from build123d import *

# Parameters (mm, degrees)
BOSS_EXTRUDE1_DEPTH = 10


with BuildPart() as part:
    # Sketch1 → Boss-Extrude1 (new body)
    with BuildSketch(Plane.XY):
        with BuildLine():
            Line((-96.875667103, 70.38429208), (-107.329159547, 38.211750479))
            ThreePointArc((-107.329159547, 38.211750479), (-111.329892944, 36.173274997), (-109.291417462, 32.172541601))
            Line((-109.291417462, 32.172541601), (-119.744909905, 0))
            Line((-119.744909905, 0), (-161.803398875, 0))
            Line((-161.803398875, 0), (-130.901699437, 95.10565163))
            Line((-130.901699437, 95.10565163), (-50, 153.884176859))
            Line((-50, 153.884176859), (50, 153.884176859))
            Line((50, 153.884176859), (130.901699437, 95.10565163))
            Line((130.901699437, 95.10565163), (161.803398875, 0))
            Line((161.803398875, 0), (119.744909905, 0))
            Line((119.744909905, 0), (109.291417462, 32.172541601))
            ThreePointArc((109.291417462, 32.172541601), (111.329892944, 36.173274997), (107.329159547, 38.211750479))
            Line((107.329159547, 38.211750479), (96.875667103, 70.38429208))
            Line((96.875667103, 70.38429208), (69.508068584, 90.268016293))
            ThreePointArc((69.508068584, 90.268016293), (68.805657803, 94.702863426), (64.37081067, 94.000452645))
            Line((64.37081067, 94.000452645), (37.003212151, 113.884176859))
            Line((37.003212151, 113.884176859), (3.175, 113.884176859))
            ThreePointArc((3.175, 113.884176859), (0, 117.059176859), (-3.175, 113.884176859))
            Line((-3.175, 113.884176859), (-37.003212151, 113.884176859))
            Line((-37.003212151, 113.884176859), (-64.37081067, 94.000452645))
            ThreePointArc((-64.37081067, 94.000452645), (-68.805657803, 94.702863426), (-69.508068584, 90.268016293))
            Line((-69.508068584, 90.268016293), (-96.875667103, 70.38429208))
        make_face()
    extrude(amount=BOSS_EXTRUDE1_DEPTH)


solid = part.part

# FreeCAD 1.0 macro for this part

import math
import FreeCAD as App
import Part
import Sketcher
Q = App.Units.Quantity

doc = App.newDocument("Part")
body = doc.addObject("PartDesign::Body", "Body")

sketch1 = doc.addObject("Sketcher::SketchObject", "Sketch")
body.addObject(sketch1)
sketch1.AttachmentSupport = (doc.XY_Plane, [""])
sketch1.MapMode = "FlatFace"
sketch1.addGeometry(Part.LineSegment(App.Vector(-107.3, 38.2, 0), App.Vector(-96.9, 70.4, 0)), False)
sketch1.addGeometry(Part.LineSegment(App.Vector(-96.9, 70.4, 0), App.Vector(-69.5, 90.3, 0)), False)
sketch1.addGeometry(Part.ArcOfCircle(Part.Circle(App.Vector(-66.9, 92.1, 0), App.Vector(0, 0, 1), 3.2), math.radians(36), math.radians(216)), False)
sketch1.addGeometry(Part.LineSegment(App.Vector(-64.4, 94, 0), App.Vector(-37, 113.9, 0)), False)
sketch1.addGeometry(Part.LineSegment(App.Vector(-37, 113.9, 0), App.Vector(-3.2, 113.9, 0)), False)
sketch1.addGeometry(Part.ArcOfCircle(Part.Circle(App.Vector(0, 113.9, 0), App.Vector(0, 0, 1), 3.2), math.radians(0), math.radians(180)), False)
sketch1.addGeometry(Part.LineSegment(App.Vector(3.2, 113.9, 0), App.Vector(37, 113.9, 0)), False)
sketch1.addGeometry(Part.LineSegment(App.Vector(37, 113.9, 0), App.Vector(64.4, 94, 0)), False)
sketch1.addGeometry(Part.ArcOfCircle(Part.Circle(App.Vector(66.9, 92.1, 0), App.Vector(0, 0, 1), 3.2), math.radians(-36), math.radians(144)), False)
sketch1.addGeometry(Part.LineSegment(App.Vector(69.5, 90.3, 0), App.Vector(96.9, 70.4, 0)), False)
sketch1.addGeometry(Part.LineSegment(App.Vector(96.9, 70.4, 0), App.Vector(107.3, 38.2, 0)), False)
sketch1.addGeometry(Part.ArcOfCircle(Part.Circle(App.Vector(108.3, 35.2, 0), App.Vector(0, 0, 1), 3.2), math.radians(-72), math.radians(108)), False)
sketch1.addGeometry(Part.LineSegment(App.Vector(109.3, 32.2, 0), App.Vector(119.7, 0, 0)), False)
sketch1.addGeometry(Part.LineSegment(App.Vector(119.7, 0, 0), App.Vector(161.8, 0, 0)), False)
sketch1.addGeometry(Part.LineSegment(App.Vector(161.8, 0, 0), App.Vector(130.9, 95.1, 0)), False)
sketch1.addGeometry(Part.LineSegment(App.Vector(130.9, 95.1, 0), App.Vector(50, 153.9, 0)), False)
sketch1.addGeometry(Part.LineSegment(App.Vector(50, 153.9, 0), App.Vector(-50, 153.9, 0)), False)
sketch1.addGeometry(Part.LineSegment(App.Vector(-50, 153.9, 0), App.Vector(-130.9, 95.1, 0)), False)
sketch1.addGeometry(Part.LineSegment(App.Vector(-130.9, 95.1, 0), App.Vector(-161.8, 0, 0)), False)
sketch1.addGeometry(Part.LineSegment(App.Vector(-161.8, 0, 0), App.Vector(-119.7, 0, 0)), False)
sketch1.addGeometry(Part.LineSegment(App.Vector(-119.7, 0, 0), App.Vector(-109.3, 32.2, 0)), False)
sketch1.addGeometry(Part.ArcOfCircle(Part.Circle(App.Vector(-108.3, 35.2, 0), App.Vector(0, 0, 1), 3.2), math.radians(72), math.radians(252)), False)
sketch1.addConstraint(Sketcher.Constraint("Coincident", 0, 2, 1, 1))
sketch1.addConstraint(Sketcher.Constraint("Coincident", 1, 2, 2, 2))
sketch1.addConstraint(Sketcher.Constraint("Coincident", 2, 1, 3, 1))
sketch1.addConstraint(Sketcher.Constraint("Coincident", 3, 2, 4, 1))
sketch1.addConstraint(Sketcher.Constraint("Coincident", 4, 2, 5, 2))
sketch1.addConstraint(Sketcher.Constraint("Coincident", 5, 1, 6, 1))
sketch1.addConstraint(Sketcher.Constraint("Coincident", 6, 2, 7, 1))
sketch1.addConstraint(Sketcher.Constraint("Coincident", 7, 2, 8, 2))
sketch1.addConstraint(Sketcher.Constraint("Coincident", 8, 1, 9, 1))
sketch1.addConstraint(Sketcher.Constraint("Coincident", 9, 2, 10, 1))
sketch1.addConstraint(Sketcher.Constraint("Coincident", 10, 2, 11, 2))
sketch1.addConstraint(Sketcher.Constraint("Coincident", 11, 1, 12, 1))
sketch1.addConstraint(Sketcher.Constraint("Coincident", 12, 2, 13, 1))
sketch1.addConstraint(Sketcher.Constraint("Coincident", 13, 2, 14, 1))
sketch1.addConstraint(Sketcher.Constraint("Coincident", 14, 2, 15, 1))
sketch1.addConstraint(Sketcher.Constraint("Coincident", 15, 2, 16, 1))
sketch1.addConstraint(Sketcher.Constraint("Coincident", 16, 2, 17, 1))
sketch1.addConstraint(Sketcher.Constraint("Coincident", 17, 2, 18, 1))
sketch1.addConstraint(Sketcher.Constraint("Coincident", 18, 2, 19, 1))
sketch1.addConstraint(Sketcher.Constraint("Coincident", 19, 2, 20, 1))
sketch1.addConstraint(Sketcher.Constraint("Coincident", 20, 2, 21, 2))
sketch1.addConstraint(Sketcher.Constraint("Coincident", 21, 1, 0, 1))
sketch1.addConstraint(Sketcher.Constraint("Horizontal", 4))
sketch1.addConstraint(Sketcher.Constraint("Horizontal", 6))
sketch1.addConstraint(Sketcher.Constraint("Horizontal", 13))
sketch1.addConstraint(Sketcher.Constraint("Horizontal", 16))
sketch1.addConstraint(Sketcher.Constraint("Horizontal", 19))
sketch1.addConstraint(Sketcher.Constraint("Equal", 2, 5))
sketch1.addConstraint(Sketcher.Constraint("Equal", 5, 8))
sketch1.addConstraint(Sketcher.Constraint("Equal", 8, 11))
sketch1.addConstraint(Sketcher.Constraint("Equal", 11, 21))
sketch1.addConstraint(Sketcher.Constraint("Symmetric", 13, 2, 18, 2, -1, 1))
sketch1.addConstraint(Sketcher.Constraint("Symmetric", 2, 3, 8, 3, -2))
sketch1.addConstraint(Sketcher.Constraint("Symmetric", 11, 3, 21, 3, -2))
sketch1.addConstraint(Sketcher.Constraint("Symmetric", 4, 2, 5, 1, -2))
sketch1.addConstraint(Sketcher.Constraint("Symmetric", 0, 2, 9, 2, -2))
sketch1.addConstraint(Sketcher.Constraint("Symmetric", 14, 2, 17, 2, -2))
sketch1.addConstraint(Sketcher.Constraint("Symmetric", 12, 2, 19, 2, -2))
sketch1.addConstraint(Sketcher.Constraint("Parallel", 1, 3))
sketch1.addConstraint(Sketcher.Constraint("Parallel", 7, 9))
sketch1.addConstraint(Sketcher.Constraint("Parallel", 10, 12))
sketch1.addConstraint(Sketcher.Constraint("Parallel", 12, 14))
sketch1.addConstraint(Sketcher.Constraint("Parallel", 9, 15))
sketch1.addConstraint(Sketcher.Constraint("Parallel", 3, 17))
sketch1.addConstraint(Sketcher.Constraint("Parallel", 0, 18))
sketch1.addConstraint(Sketcher.Constraint("Parallel", 18, 20))
sketch1.addConstraint(Sketcher.Constraint("Horizontal", 5, 3, 3, 2))
sketch1.addConstraint(Sketcher.Constraint("Horizontal", 2, 1, 7, 2))
sketch1.addConstraint(Sketcher.Constraint("Horizontal", 1, 2, 8, 1))
sketch1.addConstraint(Sketcher.Constraint("Equal", 0, 1))
sketch1.addConstraint(Sketcher.Constraint("Equal", 1, 3))
sketch1.addConstraint(Sketcher.Constraint("Equal", 10, 12))
sketch1.addConstraint(Sketcher.Constraint("Equal", 14, 15))
sketch1.addConstraint(Sketcher.Constraint("DistanceX", 16, 2, 16, 1, 100.0))
sketch1.addConstraint(Sketcher.Constraint("Angle", 0, Q("72 deg")))
sketch1.addConstraint(Sketcher.Constraint("Angle", 1, Q("36 deg")))
sketch1.addConstraint(Sketcher.Constraint("Distance", 14, 100.0))
sketch1.addConstraint(Sketcher.Constraint("Radius", 2, 3.175))
sketch1.addConstraint(Sketcher.Constraint("DistanceY", 6, 2, 15, 2, 40.0))
sketch1.addConstraint(Sketcher.Constraint("DistanceX", 13, 1, 13, 2, 42.058489))
sketch1.addConstraint(Sketcher.Constraint("DistanceX", 0, 2, 1, 2, 27.367599))
sketch1.addConstraint(Sketcher.Constraint("DistanceY", 10, 2, 14, 2, 56.893901))
sketch1.addConstraint(Sketcher.Constraint("DistanceX", 2, 3, -1, 1, 66.93944))
sketch1.addConstraint(Sketcher.Constraint("DistanceX", -1, 1, 11, 3, 108.310289))
pad1 = doc.addObject("PartDesign::Pad", "Pad")
body.addObject(pad1)
pad1.Profile = sketch1
pad1.Length = 10

doc.recompute()
